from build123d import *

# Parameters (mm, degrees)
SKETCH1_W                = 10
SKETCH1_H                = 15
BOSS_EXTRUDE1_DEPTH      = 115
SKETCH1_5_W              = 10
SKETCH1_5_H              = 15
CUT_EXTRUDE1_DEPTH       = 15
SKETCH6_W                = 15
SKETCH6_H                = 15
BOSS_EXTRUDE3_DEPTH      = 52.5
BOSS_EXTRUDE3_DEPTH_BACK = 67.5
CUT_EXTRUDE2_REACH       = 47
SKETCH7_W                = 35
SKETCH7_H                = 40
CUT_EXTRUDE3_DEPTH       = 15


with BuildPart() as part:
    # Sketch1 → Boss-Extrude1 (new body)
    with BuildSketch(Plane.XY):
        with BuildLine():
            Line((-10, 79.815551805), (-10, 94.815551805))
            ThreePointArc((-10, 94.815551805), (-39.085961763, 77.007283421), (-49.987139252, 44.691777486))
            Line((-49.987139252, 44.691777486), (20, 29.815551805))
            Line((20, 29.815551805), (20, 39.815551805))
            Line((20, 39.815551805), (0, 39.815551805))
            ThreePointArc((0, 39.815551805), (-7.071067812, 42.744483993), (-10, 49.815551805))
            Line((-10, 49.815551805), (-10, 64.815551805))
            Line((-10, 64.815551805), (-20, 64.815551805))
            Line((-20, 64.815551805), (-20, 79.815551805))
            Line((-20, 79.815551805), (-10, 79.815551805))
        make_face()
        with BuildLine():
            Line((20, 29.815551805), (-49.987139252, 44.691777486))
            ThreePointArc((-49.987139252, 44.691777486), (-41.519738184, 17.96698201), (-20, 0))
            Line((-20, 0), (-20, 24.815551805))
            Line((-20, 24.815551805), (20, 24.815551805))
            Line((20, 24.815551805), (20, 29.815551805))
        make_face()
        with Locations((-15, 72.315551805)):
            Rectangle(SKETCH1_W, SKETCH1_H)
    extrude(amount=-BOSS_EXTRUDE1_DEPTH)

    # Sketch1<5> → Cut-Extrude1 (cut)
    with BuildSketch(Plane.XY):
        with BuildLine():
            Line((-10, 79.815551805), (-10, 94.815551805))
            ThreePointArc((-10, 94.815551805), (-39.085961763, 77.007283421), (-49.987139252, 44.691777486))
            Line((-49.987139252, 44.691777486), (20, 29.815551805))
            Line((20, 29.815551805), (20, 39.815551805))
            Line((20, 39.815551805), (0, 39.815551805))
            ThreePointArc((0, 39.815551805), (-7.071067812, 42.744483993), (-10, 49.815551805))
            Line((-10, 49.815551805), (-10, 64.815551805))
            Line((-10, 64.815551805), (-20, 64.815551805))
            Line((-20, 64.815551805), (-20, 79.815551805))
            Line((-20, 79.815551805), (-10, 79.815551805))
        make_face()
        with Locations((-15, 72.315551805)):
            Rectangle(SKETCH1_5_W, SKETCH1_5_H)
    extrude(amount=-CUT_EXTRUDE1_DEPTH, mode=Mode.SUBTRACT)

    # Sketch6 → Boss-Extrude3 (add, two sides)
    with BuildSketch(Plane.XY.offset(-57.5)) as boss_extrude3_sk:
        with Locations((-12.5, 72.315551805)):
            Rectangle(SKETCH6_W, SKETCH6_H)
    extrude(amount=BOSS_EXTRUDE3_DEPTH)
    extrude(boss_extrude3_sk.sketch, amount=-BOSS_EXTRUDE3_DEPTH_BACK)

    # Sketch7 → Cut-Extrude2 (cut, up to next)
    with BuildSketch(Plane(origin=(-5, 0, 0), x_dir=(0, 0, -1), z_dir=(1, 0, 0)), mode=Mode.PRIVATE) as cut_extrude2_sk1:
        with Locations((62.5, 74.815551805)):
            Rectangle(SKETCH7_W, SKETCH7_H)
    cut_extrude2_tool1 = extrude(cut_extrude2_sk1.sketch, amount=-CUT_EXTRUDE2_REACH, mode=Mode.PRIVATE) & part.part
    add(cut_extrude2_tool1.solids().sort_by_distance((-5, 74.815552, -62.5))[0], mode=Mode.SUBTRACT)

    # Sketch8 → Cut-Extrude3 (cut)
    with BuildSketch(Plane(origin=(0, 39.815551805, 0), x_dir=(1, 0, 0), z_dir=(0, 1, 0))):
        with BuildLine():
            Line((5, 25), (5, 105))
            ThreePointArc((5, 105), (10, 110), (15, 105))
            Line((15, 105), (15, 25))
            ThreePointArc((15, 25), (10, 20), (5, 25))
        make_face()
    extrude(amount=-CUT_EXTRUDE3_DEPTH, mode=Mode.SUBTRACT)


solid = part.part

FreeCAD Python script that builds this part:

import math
import FreeCAD as App
import Part
import Sketcher
Q = App.Units.Quantity

doc = App.newDocument("Part")
params = doc.addObject("Spreadsheet::Sheet", "Params")
for row, (alias, value) in enumerate([
    ("sketch1_radius", "50 mm"),
    ("sketch1_radius2", "10 mm"),
    ("sketch1_width", "40 mm"),
    ("sketch1_width2", "20 mm"),
    ("sketch1_height", "15 mm"),
    ("pad1_length", "115 mm"),
    ("sketch2_radius", "50 mm"),
    ("sketch2_radius2", "10 mm"),
    ("sketch2_width", "20 mm"),
    ("sketch2_height", "10 mm"),
    ("sketch2_height2", "45 mm"),
    ("pocket1_length", "15 mm"),
    ("sketch3_width", "15 mm"),
    ("pad2_length", "52.5 mm"),
    ("pad2_length2", "67.5 mm"),
    ("sketch4_width", "40 mm"),
    ("sketch4_height", "35 mm"),
    ("sketch5_radius", "5 mm"),
    ("sketch5_height", "80 mm"),
    ("pocket3_length", "15 mm"),
], start=1):
    params.set(f"A{row}", alias)
    params.set(f"B{row}", "=" + value)
    params.setAlias(f"B{row}", alias)

body = doc.addObject("PartDesign::Body", "Body")

# Sketch on XY plane
sketch1 = body.newObject("Sketcher::SketchObject", "Sketch")
sketch1.AttachmentSupport = (doc.getObject("XY_Plane"), [""])
sketch1.MapMode = "FlatFace"
sketch1.addGeometry(Part.ArcOfCircle(Part.Circle(App.Vector(0, 45.825757, 0), App.Vector(0, 0, 1), 50), math.radians(101.536959), math.radians(246.421822)), False)
sketch1.addGeometry(Part.LineSegment(App.Vector(-20, 0, 0), App.Vector(-20, 24.815552, 0)), False)
sketch1.addGeometry(Part.LineSegment(App.Vector(-20, 24.815552, 0), App.Vector(20, 24.815552, 0)), False)
sketch1.addGeometry(Part.LineSegment(App.Vector(20, 24.815552, 0), App.Vector(20, 39.815552, 0)), False)
sketch1.addGeometry(Part.LineSegment(App.Vector(20, 39.815552, 0), App.Vector(0, 39.815552, 0)), False)
sketch1.addGeometry(Part.ArcOfCircle(Part.Circle(App.Vector(0, 49.815552, 0), App.Vector(0, 0, 1), 10), math.radians(180), math.radians(270)), False)
sketch1.addGeometry(Part.LineSegment(App.Vector(-10, 49.815552, 0), App.Vector(-10, 94.815552, 0)), False)
sketch1.addConstraint(Sketcher.Constraint("Coincident", 0, 2, 1, 1))
sketch1.addConstraint(Sketcher.Constraint("Coincident", 1, 2, 2, 1))
sketch1.addConstraint(Sketcher.Constraint("Coincident", 2, 2, 3, 1))
sketch1.addConstraint(Sketcher.Constraint("Coincident", 3, 2, 4, 1))
sketch1.addConstraint(Sketcher.Constraint("Tangent", 4, 2, 5, 2))
sketch1.addConstraint(Sketcher.Constraint("Tangent", 5, 1, 6, 1))
sketch1.addConstraint(Sketcher.Constraint("Coincident", 6, 2, 0, 1))
sketch1.addConstraint(Sketcher.Constraint("Vertical", 1))
sketch1.addConstraint(Sketcher.Constraint("Horizontal", 2))
sketch1.addConstraint(Sketcher.Constraint("Vertical", 3))
sketch1.addConstraint(Sketcher.Constraint("Horizontal", 4))
sketch1.addConstraint(Sketcher.Constraint("Vertical", 6))
sketch1.addConstraint(Sketcher.Constraint("PointOnObject", 0, 3, -2))
sketch1.addConstraint(Sketcher.Constraint("PointOnObject", 5, 3, -2))
sketch1.addConstraint(Sketcher.Constraint("PointOnObject", 0, 2, -1))
sketch1.addConstraint(Sketcher.Constraint("Radius", 0, 50.0))
sketch1.addConstraint(Sketcher.Constraint("Radius", 5, 10.0))
sketch1.addConstraint(Sketcher.Constraint("DistanceX", 2, 1, 2, 2, 40.0))
sketch1.addConstraint(Sketcher.Constraint("DistanceX", 4, 2, 4, 1, 20.0))
sketch1.addConstraint(Sketcher.Constraint("DistanceY", 3, 1, 3, 2, 15.0))
sketch1.addConstraint(Sketcher.Constraint("DistanceY", 6, 1, 6, 2, 45.0))
sketch1.setExpression("Constraints[15]", "Params.sketch1_radius")
sketch1.setExpression("Constraints[16]", "Params.sketch1_radius2")
sketch1.setExpression("Constraints[17]", "Params.sketch1_width")
sketch1.setExpression("Constraints[18]", "Params.sketch1_width2")
sketch1.setExpression("Constraints[19]", "Params.sketch1_height")
pad1 = body.newObject("PartDesign::Pad", "Pad")
pad1.Profile = sketch1
pad1.setExpression("Length", "Params.pad1_length")
pad1.Reversed = True

# Sketch on XY plane
sketch2 = body.newObject("Sketcher::SketchObject", "Sketch001")
sketch2.AttachmentSupport = (doc.getObject("XY_Plane"), [""])
sketch2.MapMode = "FlatFace"
sketch2.addGeometry(Part.ArcOfCircle(Part.Circle(App.Vector(0, 45.825757, 0), App.Vector(0, 0, 1), 50), math.radians(101.536959), math.radians(181.299556)), False)
sketch2.addGeometry(Part.LineSegment(App.Vector(-49.987139, 44.691777, 0), App.Vector(20, 29.815552, 0)), False)
sketch2.addGeometry(Part.LineSegment(App.Vector(20, 29.815552, 0), App.Vector(20, 39.815552, 0)), False)
sketch2.addGeometry(Part.LineSegment(App.Vector(20, 39.815552, 0), App.Vector(0, 39.815552, 0)), False)
sketch2.addGeometry(Part.ArcOfCircle(Part.Circle(App.Vector(0, 49.815552, 0), App.Vector(0, 0, 1), 10), math.radians(180), math.radians(270)), False)
sketch2.addGeometry(Part.LineSegment(App.Vector(-10, 49.815552, 0), App.Vector(-10, 94.815552, 0)), False)
sketch2.addConstraint(Sketcher.Constraint("Coincident", 0, 2, 1, 1))
sketch2.addConstraint(Sketcher.Constraint("Coincident", 1, 2, 2, 1))
sketch2.addConstraint(Sketcher.Constraint("Coincident", 2, 2, 3, 1))
sketch2.addConstraint(Sketcher.Constraint("Tangent", 3, 2, 4, 2))
sketch2.addConstraint(Sketcher.Constraint("Tangent", 4, 1, 5, 1))
sketch2.addConstraint(Sketcher.Constraint("Coincident", 5, 2, 0, 1))
sketch2.addConstraint(Sketcher.Constraint("Vertical", 2))
sketch2.addConstraint(Sketcher.Constraint("Horizontal", 3))
sketch2.addConstraint(Sketcher.Constraint("Vertical", 5))
sketch2.addConstraint(Sketcher.Constraint("PointOnObject", 0, 3, -2))
sketch2.addConstraint(Sketcher.Constraint("PointOnObject", 4, 3, -2))
sketch2.addConstraint(Sketcher.Constraint("Radius", 0, 50.0))
sketch2.addConstraint(Sketcher.Constraint("Radius", 4, 10.0))
sketch2.addConstraint(Sketcher.Constraint("DistanceX", 3, 2, 3, 1, 20.0))
sketch2.addConstraint(Sketcher.Constraint("DistanceY", 2, 1, 2, 2, 10.0))
sketch2.addConstraint(Sketcher.Constraint("DistanceY", 5, 1, 5, 2, 45.0))
sketch2.addConstraint(Sketcher.Constraint("Angle", 1, Q("-12 deg")))
sketch2.addConstraint(Sketcher.Constraint("DistanceY", -1, 1, 4, 3, 49.815552))
sketch2.setExpression("Constraints[11]", "Params.sketch2_radius")
sketch2.setExpression("Constraints[12]", "Params.sketch2_radius2")
sketch2.setExpression("Constraints[13]", "Params.sketch2_width")
sketch2.setExpression("Constraints[14]", "Params.sketch2_height")
sketch2.setExpression("Constraints[15]", "Params.sketch2_height2")
pocket1 = body.newObject("PartDesign::Pocket", "Pocket")
pocket1.Profile = sketch2
pocket1.setExpression("Length", "Params.pocket1_length")

# Sketch on XY plane
sketch3 = body.newObject("Sketcher::SketchObject", "Sketch002")
sketch3.AttachmentSupport = (doc.getObject("XY_Plane"), [""])
sketch3.MapMode = "FlatFace"
sketch3.AttachmentOffset = App.Placement(App.Vector(0, 0, -57.5), App.Rotation())
sketch3.addGeometry(Part.LineSegment(App.Vector(-20, 79.815552, 0), App.Vector(-20, 64.815552, 0)), False)
sketch3.addGeometry(Part.LineSegment(App.Vector(-20, 64.815552, 0), App.Vector(-5, 64.815552, 0)), False)
sketch3.addGeometry(Part.LineSegment(App.Vector(-5, 64.815552, 0), App.Vector(-5, 79.815552, 0)), False)
sketch3.addGeometry(Part.LineSegment(App.Vector(-5, 79.815552, 0), App.Vector(-20, 79.815552, 0)), False)
sketch3.addConstraint(Sketcher.Constraint("Coincident", 0, 2, 1, 1))
sketch3.addConstraint(Sketcher.Constraint("Coincident", 1, 2, 2, 1))
sketch3.addConstraint(Sketcher.Constraint("Coincident", 2, 2, 3, 1))
sketch3.addConstraint(Sketcher.Constraint("Coincident", 3, 2, 0, 1))
sketch3.addConstraint(Sketcher.Constraint("Vertical", 0))
sketch3.addConstraint(Sketcher.Constraint("Horizontal", 1))
sketch3.addConstraint(Sketcher.Constraint("Vertical", 2))
sketch3.addConstraint(Sketcher.Constraint("Horizontal", 3))
sketch3.addConstraint(Sketcher.Constraint("Equal", 3, 0))
sketch3.addConstraint(Sketcher.Constraint("DistanceX", 1, 1, 1, 2, 15.0))
sketch3.addConstraint(Sketcher.Constraint("DistanceX", 0, 2, -1, 1, 20.0))
sketch3.addConstraint(Sketcher.Constraint("DistanceY", -1, 1, 0, 2, 64.815552))
sketch3.setExpression("Constraints[9]", "Params.sketch3_width")
pad2 = body.newObject("PartDesign::Pad", "Pad001")
pad2.Profile = sketch3
pad2.Type = "TwoLengths"
pad2.setExpression("Length", "Params.pad2_length")
pad2.setExpression("Length2", "Params.pad2_length2")

# Sketch on YZ plane
sketch4 = body.newObject("Sketcher::SketchObject", "Sketch003")
sketch4.AttachmentSupport = (doc.getObject("YZ_Plane"), [""])
sketch4.MapMode = "FlatFace"
sketch4.AttachmentOffset = App.Placement(App.Vector(0, 0, -5), App.Rotation())
sketch4.addGeometry(Part.LineSegment(App.Vector(94.815552, -45, 0), App.Vector(54.815552, -45, 0)), False)
sketch4.addGeometry(Part.LineSegment(App.Vector(54.815552, -45, 0), App.Vector(54.815552, -80, 0)), False)
sketch4.addGeometry(Part.LineSegment(App.Vector(54.815552, -80, 0), App.Vector(94.815552, -80, 0)), False)
sketch4.addGeometry(Part.LineSegment(App.Vector(94.815552, -80, 0), App.Vector(94.815552, -45, 0)), False)
sketch4.addConstraint(Sketcher.Constraint("Coincident", 0, 2, 1, 1))
sketch4.addConstraint(Sketcher.Constraint("Coincident", 1, 2, 2, 1))
sketch4.addConstraint(Sketcher.Constraint("Coincident", 2, 2, 3, 1))
sketch4.addConstraint(Sketcher.Constraint("Coincident", 3, 2, 0, 1))
sketch4.addConstraint(Sketcher.Constraint("Horizontal", 0))
sketch4.addConstraint(Sketcher.Constraint("Vertical", 1))
sketch4.addConstraint(Sketcher.Constraint("Horizontal", 2))
sketch4.addConstraint(Sketcher.Constraint("Vertical", 3))
sketch4.addConstraint(Sketcher.Constraint("DistanceX", 0, 2, 0, 1, 40.0))
sketch4.addConstraint(Sketcher.Constraint("DistanceY", 1, 2, 1, 1, 35.0))
sketch4.addConstraint(Sketcher.Constraint("DistanceY", 0, 2, -1, 1, 45.0))
sketch4.addConstraint(Sketcher.Constraint("DistanceX", -1, 1, 0, 2, 54.815552))
sketch4.setExpression("Constraints[8]", "Params.sketch4_width")
sketch4.setExpression("Constraints[9]", "Params.sketch4_height")
pocket2 = body.newObject("PartDesign::Pocket", "Pocket001")
pocket2.Profile = sketch4
pocket2.Type = "UpToFirst"

# Sketch on XZ plane
sketch5 = body.newObject("Sketcher::SketchObject", "Sketch004")
sketch5.AttachmentSupport = (doc.getObject("XZ_Plane"), [""])
sketch5.MapMode = "FlatFace"
sketch5.AttachmentOffset = App.Placement(App.Vector(0, 0, -39.815552), App.Rotation())
sketch5.addGeometry(Part.LineSegment(App.Vector(5, -105, 0), App.Vector(5, -25, 0)), False)
sketch5.addGeometry(Part.ArcOfCircle(Part.Circle(App.Vector(10, -25, 0), App.Vector(0, 0, 1), 5), math.radians(0), math.radians(180)), False)
sketch5.addGeometry(Part.LineSegment(App.Vector(15, -25, 0), App.Vector(15, -105, 0)), False)
sketch5.addGeometry(Part.ArcOfCircle(Part.Circle(App.Vector(10, -105, 0), App.Vector(0, 0, 1), 5), math.radians(180), math.radians(360)), False)
sketch5.addConstraint(Sketcher.Constraint("Tangent", 0, 2, 1, 2))
sketch5.addConstraint(Sketcher.Constraint("Tangent", 1, 1, 2, 1))
sketch5.addConstraint(Sketcher.Constraint("Tangent", 2, 2, 3, 2))
sketch5.addConstraint(Sketcher.Constraint("Tangent", 3, 1, 0, 1))
sketch5.addConstraint(Sketcher.Constraint("Vertical", 0))
sketch5.addConstraint(Sketcher.Constraint("Vertical", 2))
sketch5.addConstraint(Sketcher.Constraint("Radius", 1, 5.0))
sketch5.addConstraint(Sketcher.Constraint("DistanceY", 0, 1, 0, 2, 80.0))
sketch5.addConstraint(Sketcher.Constraint("DistanceX", -1, 1, 1, 3, 10.0))
sketch5.addConstraint(Sketcher.Constraint("DistanceY", 1, 3, -1, 1, 25.0))
sketch5.setExpression("Constraints[6]", "Params.sketch5_radius")
sketch5.setExpression("Constraints[7]", "Params.sketch5_height")
pocket3 = body.newObject("PartDesign::Pocket", "Pocket002")
pocket3.Profile = sketch5
pocket3.setExpression("Length", "Params.pocket3_length")
pocket3.Reversed = True

doc.recompute()
